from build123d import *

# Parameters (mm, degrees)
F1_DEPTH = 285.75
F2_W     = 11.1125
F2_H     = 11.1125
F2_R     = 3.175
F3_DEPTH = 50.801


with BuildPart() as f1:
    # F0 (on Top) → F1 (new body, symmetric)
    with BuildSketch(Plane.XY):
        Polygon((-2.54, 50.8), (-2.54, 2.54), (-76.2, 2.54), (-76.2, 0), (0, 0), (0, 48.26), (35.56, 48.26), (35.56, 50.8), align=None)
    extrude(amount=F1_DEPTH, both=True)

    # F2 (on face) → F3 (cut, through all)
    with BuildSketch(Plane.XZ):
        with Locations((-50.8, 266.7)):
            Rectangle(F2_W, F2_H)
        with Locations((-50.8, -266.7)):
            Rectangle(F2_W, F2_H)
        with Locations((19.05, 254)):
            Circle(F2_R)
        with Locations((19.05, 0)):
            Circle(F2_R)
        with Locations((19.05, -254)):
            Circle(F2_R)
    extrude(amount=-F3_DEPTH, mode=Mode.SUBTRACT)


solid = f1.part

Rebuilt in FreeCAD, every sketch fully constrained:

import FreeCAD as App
import Part
import Sketcher
from FreeCAD import Vector
Q = App.Units.Quantity


def add_polygon(sketch, points):
    """Adds a closed chain of lines whose ends are joined by coincident constraints."""
    first, n = sketch.GeometryCount, len(points)
    for a, b in zip(points, points[1:] + points[:1]):
        sketch.addGeometry(Part.LineSegment(App.Vector(*a, 0), App.Vector(*b, 0)), False)
    for i in range(n):
        sketch.addConstraint(Sketcher.Constraint("Coincident", first + i, 2, first + (i + 1) % n, 1))

doc = App.newDocument("Part")
body = doc.addObject("PartDesign::Body", "Body")

sketch1 = body.newObject("Sketcher::SketchObject", "Sketch")
sketch1.AttachmentSupport = (doc.getObject("XY_Plane"), [""])
sketch1.MapMode = "FlatFace"
add_polygon(sketch1, [(-2.54, 50.8), (-2.54, 2.54), (-76.2, 2.54), (-76.2, 0), (0, 0), (0, 48.26), (35.56, 48.26), (35.56, 50.8)])
sketch1.addConstraint([
    Sketcher.Constraint("Vertical", 0),
    Sketcher.Constraint("Horizontal", 1),
    Sketcher.Constraint("Vertical", 2),
    Sketcher.Constraint("Horizontal", 3),
    Sketcher.Constraint("Vertical", 4),
    Sketcher.Constraint("Horizontal", 5),
    Sketcher.Constraint("Vertical", 6),
    Sketcher.Constraint("Horizontal", 7),
    Sketcher.Constraint("Coincident", 3, 2, -1, 1),
    Sketcher.Constraint("Equal", 0, 4),
    Sketcher.Constraint("DistanceX", 3, 1, 3, 2, Q("3 in")),
    Sketcher.Constraint("DistanceX", 1, 2, 1, 1, Q("2.9 in")),
    Sketcher.Constraint("DistanceX", 5, 1, 5, 2, Q("1.4 in")),
    Sketcher.Constraint("DistanceY", 0, 2, 0, 1, Q("1.9 in")),
    Sketcher.Constraint("DistanceY", 2, 2, 2, 1, Q("0.1 in")),
])
pad1 = body.newObject("PartDesign::Pad", "Pad")
pad1.Profile = sketch1
pad1.Length = Q("22.5 in")
pad1.Midplane = True

sketch2 = body.newObject("Sketcher::SketchObject", "Sketch001")
sketch2.AttachmentSupport = (doc.getObject("XZ_Plane"), [""])
sketch2.MapMode = "FlatFace"
add_polygon(sketch2, [(-56.35625, 272.25625), (-56.35625, 261.14375), (-45.24375, 261.14375), (-45.24375, 272.25625)])
add_polygon(sketch2, [(-56.35625, -261.14375), (-56.35625, -272.25625), (-45.24375, -272.25625), (-45.24375, -261.14375)])
sketch2.addGeometry(Part.Circle(Vector(19.05, 254, 0), Vector(0, 0, 1), 3.175), False)
sketch2.addGeometry(Part.Circle(Vector(19.05, 0, 0), Vector(0, 0, 1), 3.175), False)
sketch2.addGeometry(Part.Circle(Vector(19.05, -254, 0), Vector(0, 0, 1), 3.175), False)
sketch2.addConstraint([
    Sketcher.Constraint("Vertical", 0),
    Sketcher.Constraint("Horizontal", 1),
    Sketcher.Constraint("Vertical", 2),
    Sketcher.Constraint("Horizontal", 3),
    Sketcher.Constraint("Vertical", 4),
    Sketcher.Constraint("Horizontal", 5),
    Sketcher.Constraint("Vertical", 6),
    Sketcher.Constraint("Horizontal", 7),
    Sketcher.Constraint("Equal", 8, 9),
    Sketcher.Constraint("Equal", 9, 10),
    Sketcher.Constraint("Symmetric", 8, 3, 10, 3, -1),
    Sketcher.Constraint("Symmetric", 3, 2, 4, 2, -1),
    Sketcher.Constraint("Symmetric", 1, 2, 6, 2, -1),
    Sketcher.Constraint("PointOnObject", 9, 3, -1),
    Sketcher.Constraint("Vertical", 8, 3, 9, 3),
    Sketcher.Constraint("Equal", 7, 0),
    Sketcher.Constraint("Diameter", 8, Q("0.25 in")),
    Sketcher.Constraint("DistanceY", -1, 1, 8, 3, Q("10 in")),
    Sketcher.Constraint("DistanceY", 4, 2, 0, 2, Q("21 in")),
    Sketcher.Constraint("DistanceX", 1, 1, 1, 2, Q("0.4375 in")),
    Sketcher.Constraint("DistanceX", -1, 1, 8, 3, Q("0.75 in")),
    Sketcher.Constraint("DistanceX", 0, 2, -1, 1, Q("2.21875 in")),
])
pocket1 = body.newObject("PartDesign::Pocket", "Pocket")
pocket1.Profile = sketch2
pocket1.Type = "ThroughAll"

doc.recompute()
